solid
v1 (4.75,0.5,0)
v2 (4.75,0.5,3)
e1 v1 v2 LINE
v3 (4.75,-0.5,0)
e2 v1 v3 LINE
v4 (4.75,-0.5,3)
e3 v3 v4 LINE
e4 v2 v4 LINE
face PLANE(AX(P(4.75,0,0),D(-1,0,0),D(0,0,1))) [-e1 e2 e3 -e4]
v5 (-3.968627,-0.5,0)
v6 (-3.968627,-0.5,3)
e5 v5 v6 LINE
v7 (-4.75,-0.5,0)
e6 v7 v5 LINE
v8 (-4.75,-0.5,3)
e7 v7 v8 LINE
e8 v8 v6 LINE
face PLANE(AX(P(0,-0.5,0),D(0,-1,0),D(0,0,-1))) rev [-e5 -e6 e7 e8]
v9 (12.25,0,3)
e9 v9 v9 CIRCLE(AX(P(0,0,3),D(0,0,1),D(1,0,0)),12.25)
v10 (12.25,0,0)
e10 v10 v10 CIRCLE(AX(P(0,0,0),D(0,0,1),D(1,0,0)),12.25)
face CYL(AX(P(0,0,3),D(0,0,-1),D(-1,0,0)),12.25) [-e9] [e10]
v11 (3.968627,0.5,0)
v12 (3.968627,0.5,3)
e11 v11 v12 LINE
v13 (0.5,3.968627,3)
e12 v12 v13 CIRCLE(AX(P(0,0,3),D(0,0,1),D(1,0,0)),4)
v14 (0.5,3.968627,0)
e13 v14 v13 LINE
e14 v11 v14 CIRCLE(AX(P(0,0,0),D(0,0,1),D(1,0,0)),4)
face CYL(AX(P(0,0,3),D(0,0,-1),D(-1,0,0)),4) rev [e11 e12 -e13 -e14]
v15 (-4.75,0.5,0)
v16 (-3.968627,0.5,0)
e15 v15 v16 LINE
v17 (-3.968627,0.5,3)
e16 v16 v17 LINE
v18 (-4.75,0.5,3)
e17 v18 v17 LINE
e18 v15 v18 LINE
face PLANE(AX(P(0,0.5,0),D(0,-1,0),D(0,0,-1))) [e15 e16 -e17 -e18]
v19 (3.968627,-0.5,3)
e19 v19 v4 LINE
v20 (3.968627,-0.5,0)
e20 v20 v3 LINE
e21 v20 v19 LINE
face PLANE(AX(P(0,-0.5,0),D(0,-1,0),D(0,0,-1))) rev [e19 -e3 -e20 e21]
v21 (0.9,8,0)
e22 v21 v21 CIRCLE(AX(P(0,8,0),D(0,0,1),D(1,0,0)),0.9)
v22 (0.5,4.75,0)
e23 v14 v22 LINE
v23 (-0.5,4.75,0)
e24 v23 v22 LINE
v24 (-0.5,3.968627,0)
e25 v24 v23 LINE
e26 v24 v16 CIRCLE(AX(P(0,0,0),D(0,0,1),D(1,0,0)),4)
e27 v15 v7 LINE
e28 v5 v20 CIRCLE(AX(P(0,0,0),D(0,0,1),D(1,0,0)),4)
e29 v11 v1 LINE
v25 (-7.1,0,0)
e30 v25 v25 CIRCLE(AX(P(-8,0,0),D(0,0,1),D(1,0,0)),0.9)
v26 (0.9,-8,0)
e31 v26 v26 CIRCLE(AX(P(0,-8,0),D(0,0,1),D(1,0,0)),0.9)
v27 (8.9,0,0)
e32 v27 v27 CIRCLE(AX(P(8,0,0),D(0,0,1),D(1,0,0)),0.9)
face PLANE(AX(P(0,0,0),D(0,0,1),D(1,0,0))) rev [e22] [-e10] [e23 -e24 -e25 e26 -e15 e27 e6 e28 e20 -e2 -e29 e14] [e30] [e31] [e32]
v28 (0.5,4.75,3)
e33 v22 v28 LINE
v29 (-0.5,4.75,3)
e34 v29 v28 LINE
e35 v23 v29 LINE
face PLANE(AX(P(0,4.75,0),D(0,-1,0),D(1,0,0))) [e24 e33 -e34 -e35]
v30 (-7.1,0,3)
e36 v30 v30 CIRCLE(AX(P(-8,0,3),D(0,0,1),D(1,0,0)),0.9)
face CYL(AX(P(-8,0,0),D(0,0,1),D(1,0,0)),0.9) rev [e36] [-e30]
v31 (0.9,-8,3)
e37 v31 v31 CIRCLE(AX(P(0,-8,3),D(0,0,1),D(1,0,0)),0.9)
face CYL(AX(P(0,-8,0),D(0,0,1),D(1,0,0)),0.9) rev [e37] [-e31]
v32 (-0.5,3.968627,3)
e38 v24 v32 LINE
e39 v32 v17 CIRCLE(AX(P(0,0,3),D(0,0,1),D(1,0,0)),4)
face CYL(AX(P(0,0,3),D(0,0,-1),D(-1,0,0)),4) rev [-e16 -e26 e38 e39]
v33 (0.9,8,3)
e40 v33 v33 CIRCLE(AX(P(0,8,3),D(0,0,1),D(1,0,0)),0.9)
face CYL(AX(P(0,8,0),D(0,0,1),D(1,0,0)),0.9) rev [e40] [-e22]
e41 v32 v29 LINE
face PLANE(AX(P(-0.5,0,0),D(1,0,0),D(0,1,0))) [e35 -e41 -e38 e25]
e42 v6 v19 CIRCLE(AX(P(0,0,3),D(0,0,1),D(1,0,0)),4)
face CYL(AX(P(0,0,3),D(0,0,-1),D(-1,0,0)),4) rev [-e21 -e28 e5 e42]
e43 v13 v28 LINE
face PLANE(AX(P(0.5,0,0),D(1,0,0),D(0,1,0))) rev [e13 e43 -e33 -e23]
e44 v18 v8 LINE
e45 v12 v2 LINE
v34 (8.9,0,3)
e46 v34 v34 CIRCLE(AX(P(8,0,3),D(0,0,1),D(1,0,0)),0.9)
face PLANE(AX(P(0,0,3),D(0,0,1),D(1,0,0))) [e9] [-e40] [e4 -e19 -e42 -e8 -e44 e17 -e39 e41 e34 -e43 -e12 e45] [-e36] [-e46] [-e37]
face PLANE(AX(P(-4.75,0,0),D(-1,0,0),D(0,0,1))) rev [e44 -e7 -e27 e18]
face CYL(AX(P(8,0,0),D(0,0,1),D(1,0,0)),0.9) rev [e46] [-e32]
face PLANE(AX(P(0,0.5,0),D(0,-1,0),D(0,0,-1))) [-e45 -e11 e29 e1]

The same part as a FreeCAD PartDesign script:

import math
import FreeCAD as App
import Part
import Sketcher
Q = App.Units.Quantity

doc = App.newDocument("Part")
params = doc.addObject("Spreadsheet::Sheet", "Params")
for row, (alias, value) in enumerate([
    ("sketch1_diameter", "8 mm"),
    ("sketch1_diameter2", "24.5 mm"),
    ("pad1_length", "3 mm"),
    ("sketch2_radius", "4 mm"),
    ("sketch2_width", "1 mm"),
    ("pocket1_length", "3 mm"),
    ("sketch3_diameter", "1.8 mm"),
    ("pocket2_length", "3 mm"),
], start=1):
    params.set(f"A{row}", alias)
    params.set(f"B{row}", "=" + value)
    params.setAlias(f"B{row}", alias)

body = doc.addObject("PartDesign::Body", "Body")

# Sketch on XY plane
sketch1 = doc.addObject("Sketcher::SketchObject", "Sketch")
body.addObject(sketch1)
sketch1.AttachmentSupport = (doc.XY_Plane, [""])
sketch1.MapMode = "FlatFace"
sketch1.addGeometry([
    Part.Circle(App.Vector(0, 0, 0), App.Vector(0, 0, 1), 12.2),
    Part.Circle(App.Vector(0, 0, 0), App.Vector(0, 0, 1), 4),
], False)
sketch1.addConstraint([
    Sketcher.Constraint("Coincident", 0, 3, -1, 1),
    Sketcher.Constraint("Coincident", 1, 3, -1, 1),
    Sketcher.Constraint("Diameter", 1, Q("8 mm")),
    Sketcher.Constraint("Diameter", 0, Q("24.5 mm")),
])
sketch1.setExpression("Constraints[2]", "Params.sketch1_diameter")
sketch1.setExpression("Constraints[3]", "Params.sketch1_diameter2")
pad1 = doc.addObject("PartDesign::Pad", "Pad")
body.addObject(pad1)
pad1.Profile = sketch1
pad1.setExpression("Length", "Params.pad1_length")

# Sketch on XY plane
sketch2 = doc.addObject("Sketcher::SketchObject", "Sketch001")
body.addObject(sketch2)
sketch2.AttachmentSupport = (doc.XY_Plane, [""])
sketch2.MapMode = "FlatFace"
sketch2.addGeometry([
    Part.LineSegment(App.Vector(-0.5, 4.8, 0), App.Vector(-0.5, 4, 0)),  # 0
    Part.ArcOfCircle(Part.Circle(App.Vector(0, 0, 0), App.Vector(0, 0, 1), 4), math.radians(82.82), math.radians(97.18)),  # 1
    Part.LineSegment(App.Vector(0.5, 4, 0), App.Vector(0.5, 4.8, 0)),  # 2
    Part.LineSegment(App.Vector(0.5, 4.8, 0), App.Vector(-0.5, 4.8, 0)),  # 3
    Part.LineSegment(App.Vector(-4, 0.5, 0), App.Vector(-4.8, 0.5, 0)),  # 4
    Part.LineSegment(App.Vector(-4.8, 0.5, 0), App.Vector(-4.8, -0.5, 0)),  # 5
    Part.LineSegment(App.Vector(-4.8, -0.5, 0), App.Vector(-4, -0.5, 0)),  # 6
    Part.ArcOfCircle(Part.Circle(App.Vector(0, 0, 0), App.Vector(0, 0, 1), 4), math.radians(172.82), math.radians(187.18)),  # 7
    Part.ArcOfCircle(Part.Circle(App.Vector(0, 0, 0), App.Vector(0, 0, 1), 4), math.radians(-7.18), math.radians(0)),  # 8
    Part.LineSegment(App.Vector(4, -0.5, 0), App.Vector(4.8, -0.5, 0)),  # 9
    Part.LineSegment(App.Vector(4.8, -0.5, 0), App.Vector(4.8, 0.5, 0)),  # 10
    Part.LineSegment(App.Vector(4.8, 0.5, 0), App.Vector(4, 0.5, 0)),  # 11
    Part.ArcOfCircle(Part.Circle(App.Vector(0, 0, 0), App.Vector(0, 0, 1), 4), math.radians(0), math.radians(7.18)),  # 12
], False)
sketch2.addConstraint([
    Sketcher.Constraint("Coincident", 0, 2, 1, 2),
    Sketcher.Constraint("Coincident", 1, 1, 2, 1),
    Sketcher.Constraint("Coincident", 2, 2, 3, 1),
    Sketcher.Constraint("Coincident", 3, 2, 0, 1),
    Sketcher.Constraint("Coincident", 4, 2, 5, 1),
    Sketcher.Constraint("Coincident", 5, 2, 6, 1),
    Sketcher.Constraint("Coincident", 6, 2, 7, 2),
    Sketcher.Constraint("Coincident", 7, 1, 4, 1),
    Sketcher.Constraint("Coincident", 8, 1, 9, 1),
    Sketcher.Constraint("Coincident", 9, 2, 10, 1),
    Sketcher.Constraint("Coincident", 10, 2, 11, 1),
    Sketcher.Constraint("Coincident", 11, 2, 12, 2),
    Sketcher.Constraint("Tangent", 12, 1, 8, 2),
    Sketcher.Constraint("Vertical", 0),
    Sketcher.Constraint("Vertical", 2),
    Sketcher.Constraint("Horizontal", 3),
    Sketcher.Constraint("Horizontal", 4),
    Sketcher.Constraint("Vertical", 5),
    Sketcher.Constraint("Horizontal", 6),
    Sketcher.Constraint("Horizontal", 9),
    Sketcher.Constraint("Vertical", 10),
    Sketcher.Constraint("Horizontal", 11),
    Sketcher.Constraint("Coincident", 1, 3, -1, 1),
    Sketcher.Constraint("Coincident", 7, 3, -1, 1),
    Sketcher.Constraint("Coincident", 8, 3, -1, 1),
    Sketcher.Constraint("Equal", 1, 7),
    Sketcher.Constraint("Equal", 7, 8),
    Sketcher.Constraint("Equal", 8, 12),
    Sketcher.Constraint("Symmetric", 4, 2, 9, 2, -1, 1),
    Sketcher.Constraint("PointOnObject", 12, 1, -1),
    Sketcher.Constraint("Horizontal", 0, 2, 1, 1),
    Sketcher.Constraint("Horizontal", 6, 2, 8, 1),
    Sketcher.Constraint("Horizontal", 7, 1, 10, 2),
    Sketcher.Constraint("Equal", 11, 0),
    Sketcher.Constraint("Equal", 3, 5),
    Sketcher.Constraint("Radius", 1, Q("4 mm")),
    Sketcher.Constraint("DistanceX", 3, 2, 3, 1, Q("1 mm")),
    Sketcher.Constraint("DistanceY", -1, 1, 2, 2, Q("4.75 mm")),
])
sketch2.setExpression("Constraints[35]", "Params.sketch2_radius")
sketch2.setExpression("Constraints[36]", "Params.sketch2_width")
pocket1 = doc.addObject("PartDesign::Pocket", "Pocket")
body.addObject(pocket1)
pocket1.Profile = sketch2
pocket1.setExpression("Length", "Params.pocket1_length")
pocket1.Reversed = True

# Sketch on XY plane
sketch3 = doc.addObject("Sketcher::SketchObject", "Sketch002")
body.addObject(sketch3)
sketch3.AttachmentSupport = (doc.XY_Plane, [""])
sketch3.MapMode = "FlatFace"
sketch3.AttachmentOffset = App.Placement(App.Vector(0, 0, 3), App.Rotation())
sketch3.addGeometry([
    Part.Circle(App.Vector(0, -8, 0), App.Vector(0, 0, 1), 0.9),
    Part.Circle(App.Vector(-8, 0, 0), App.Vector(0, 0, 1), 0.9),
    Part.Circle(App.Vector(0, 8, 0), App.Vector(0, 0, 1), 0.9),
    Part.Circle(App.Vector(8, 0, 0), App.Vector(0, 0, 1), 0.9),
], False)
sketch3.addConstraint([
    Sketcher.Constraint("Equal", 0, 1),
    Sketcher.Constraint("Equal", 1, 2),
    Sketcher.Constraint("Equal", 2, 3),
    Sketcher.Constraint("Symmetric", 0, 3, 2, 3, -1, 1),
    Sketcher.Constraint("Symmetric", 1, 3, 3, 3, -1, 1),
    Sketcher.Constraint("PointOnObject", 0, 3, -2),
    Sketcher.Constraint("PointOnObject", 1, 3, -1),
    Sketcher.Constraint("Diameter", 0, Q("1.8 mm")),
    Sketcher.Constraint("DistanceY", 0, 3, -1, 1, Q("8 mm")),
    Sketcher.Constraint("DistanceX", 1, 3, -1, 1, Q("8 mm")),
])
sketch3.setExpression("Constraints[7]", "Params.sketch3_diameter")
pocket2 = doc.addObject("PartDesign::Pocket", "Pocket001")
body.addObject(pocket2)
pocket2.Profile = sketch3
pocket2.setExpression("Length", "Params.pocket2_length")

doc.recompute()
